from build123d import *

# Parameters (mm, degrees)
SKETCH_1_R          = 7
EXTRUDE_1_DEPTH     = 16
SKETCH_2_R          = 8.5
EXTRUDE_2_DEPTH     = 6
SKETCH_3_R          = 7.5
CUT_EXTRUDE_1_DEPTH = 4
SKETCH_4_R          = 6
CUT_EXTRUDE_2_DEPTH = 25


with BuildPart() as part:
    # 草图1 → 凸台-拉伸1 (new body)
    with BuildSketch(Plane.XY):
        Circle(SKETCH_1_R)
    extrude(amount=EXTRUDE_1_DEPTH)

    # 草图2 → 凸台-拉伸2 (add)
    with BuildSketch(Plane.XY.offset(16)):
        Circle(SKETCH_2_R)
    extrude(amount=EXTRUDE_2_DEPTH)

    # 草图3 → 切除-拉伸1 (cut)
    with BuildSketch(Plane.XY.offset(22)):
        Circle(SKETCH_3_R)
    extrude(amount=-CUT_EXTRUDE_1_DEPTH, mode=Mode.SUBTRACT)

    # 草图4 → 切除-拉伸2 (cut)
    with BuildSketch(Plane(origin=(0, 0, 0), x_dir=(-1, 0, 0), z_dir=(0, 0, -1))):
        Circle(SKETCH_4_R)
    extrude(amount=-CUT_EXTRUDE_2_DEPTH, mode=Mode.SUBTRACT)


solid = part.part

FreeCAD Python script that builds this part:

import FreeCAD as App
import Part
import Sketcher
Q = App.Units.Quantity

doc = App.newDocument("Part")
body = doc.addObject("PartDesign::Body", "Body")

# Sketch on XY plane
sketch1 = body.newObject("Sketcher::SketchObject", "Sketch")
sketch1.AttachmentSupport = (doc.getObject("XY_Plane"), [""])
sketch1.MapMode = "FlatFace"
sketch1.addGeometry(Part.Circle(App.Vector(0, 0, 0), App.Vector(0, 0, 1), 7), False)
sketch1.addConstraint([
    Sketcher.Constraint("Coincident", 0, 3, -1, 1),
    Sketcher.Constraint("Diameter", 0, Q("14 mm")),
])
pad1 = body.newObject("PartDesign::Pad", "Pad")
pad1.Profile = sketch1
pad1.Length = 16

# Sketch on XY plane
sketch2 = body.newObject("Sketcher::SketchObject", "Sketch001")
sketch2.AttachmentSupport = (doc.getObject("XY_Plane"), [""])
sketch2.MapMode = "FlatFace"
sketch2.AttachmentOffset = App.Placement(App.Vector(0, 0, 16), App.Rotation())
sketch2.addGeometry(Part.Circle(App.Vector(0, 0, 0), App.Vector(0, 0, 1), 8.5), False)
sketch2.addConstraint([
    Sketcher.Constraint("Coincident", 0, 3, -1, 1),
    Sketcher.Constraint("Diameter", 0, Q("17 mm")),
])
pad2 = body.newObject("PartDesign::Pad", "Pad001")
pad2.Profile = sketch2
pad2.Length = 6

# Sketch on XY plane
sketch3 = body.newObject("Sketcher::SketchObject", "Sketch002")
sketch3.AttachmentSupport = (doc.getObject("XY_Plane"), [""])
sketch3.MapMode = "FlatFace"
sketch3.AttachmentOffset = App.Placement(App.Vector(0, 0, 22), App.Rotation())
sketch3.addGeometry(Part.Circle(App.Vector(0, 0, 0), App.Vector(0, 0, 1), 7.5), False)
sketch3.addConstraint([
    Sketcher.Constraint("Coincident", 0, 3, -1, 1),
    Sketcher.Constraint("Diameter", 0, Q("15 mm")),
])
pocket1 = body.newObject("PartDesign::Pocket", "Pocket")
pocket1.Profile = sketch3
pocket1.Length = 4

# Sketch on XY plane
sketch4 = body.newObject("Sketcher::SketchObject", "Sketch003")
sketch4.AttachmentSupport = (doc.getObject("XY_Plane"), [""])
sketch4.MapMode = "FlatFace"
sketch4.addGeometry(Part.Circle(App.Vector(0, 0, 0), App.Vector(0, 0, 1), 6), False)
sketch4.addConstraint([
    Sketcher.Constraint("Coincident", 0, 3, -1, 1),
    Sketcher.Constraint("Diameter", 0, Q("12 mm")),
])
pocket2 = body.newObject("PartDesign::Pocket", "Pocket001")
pocket2.Profile = sketch4
pocket2.Length = 25
pocket2.Reversed = True

doc.recompute()
